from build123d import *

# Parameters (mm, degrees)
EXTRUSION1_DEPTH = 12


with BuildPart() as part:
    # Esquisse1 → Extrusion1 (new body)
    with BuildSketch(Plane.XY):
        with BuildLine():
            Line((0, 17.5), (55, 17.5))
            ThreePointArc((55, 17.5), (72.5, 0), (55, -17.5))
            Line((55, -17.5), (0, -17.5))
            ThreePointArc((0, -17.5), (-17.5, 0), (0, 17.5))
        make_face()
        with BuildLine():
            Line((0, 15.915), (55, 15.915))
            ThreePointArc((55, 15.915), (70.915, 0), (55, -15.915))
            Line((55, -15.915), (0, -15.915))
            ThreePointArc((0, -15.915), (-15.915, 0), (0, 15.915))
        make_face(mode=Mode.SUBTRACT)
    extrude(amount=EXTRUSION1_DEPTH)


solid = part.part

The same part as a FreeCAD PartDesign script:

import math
import FreeCAD as App
import Part
import Sketcher
from FreeCAD import Vector

doc = App.newDocument("Part")
params = doc.addObject("Spreadsheet::Sheet", "Params")
for row, (alias, value) in enumerate([
    ("sketch1_radius", "17.5 mm"),
    ("sketch1_width", "55 mm"),
    ("pad1_length", "12 mm"),
], start=1):
    params.set(f"A{row}", alias)
    params.set(f"B{row}", "=" + value)
    params.setAlias(f"B{row}", alias)

body = doc.addObject("PartDesign::Body", "Body")

# Sketch on XY plane
sketch1 = body.newObject("Sketcher::SketchObject", "Sketch")
sketch1.AttachmentSupport = (doc.getObject("XY_Plane"), [""])
sketch1.MapMode = "FlatFace"
sketch1.addGeometry(Part.LineSegment(Vector(55, 18, 0), Vector(0, 18, 0)), False)
sketch1.addGeometry(Part.ArcOfCircle(Part.Circle(Vector(0, 0, 0), Vector(0, 0, 1), 18), math.radians(90), math.radians(270)), False)
sketch1.addGeometry(Part.LineSegment(Vector(0, -18, 0), Vector(55, -18, 0)), False)
sketch1.addGeometry(Part.ArcOfCircle(Part.Circle(Vector(55, 0, 0), Vector(0, 0, 1), 18), math.radians(-90), math.radians(90)), False)
sketch1.addGeometry(Part.LineSegment(Vector(0, 16, 0), Vector(55, 16, 0)), False)
sketch1.addGeometry(Part.ArcOfCircle(Part.Circle(Vector(55, 0, 0), Vector(0, 0, 1), 16), math.radians(-90), math.radians(90)), False)
sketch1.addGeometry(Part.LineSegment(Vector(55, -16, 0), Vector(0, -16, 0)), False)
sketch1.addGeometry(Part.ArcOfCircle(Part.Circle(Vector(0, 0, 0), Vector(0, 0, 1), 16), math.radians(90), math.radians(270)), False)
sketch1.addConstraint(Sketcher.Constraint("Tangent", 0, 2, 1, 1))
sketch1.addConstraint(Sketcher.Constraint("Tangent", 1, 2, 2, 1))
sketch1.addConstraint(Sketcher.Constraint("Tangent", 2, 2, 3, 1))
sketch1.addConstraint(Sketcher.Constraint("Tangent", 3, 2, 0, 1))
sketch1.addConstraint(Sketcher.Constraint("Tangent", 4, 2, 5, 2))
sketch1.addConstraint(Sketcher.Constraint("Tangent", 5, 1, 6, 1))
sketch1.addConstraint(Sketcher.Constraint("Tangent", 6, 2, 7, 2))
sketch1.addConstraint(Sketcher.Constraint("Tangent", 7, 1, 4, 1))
sketch1.addConstraint(Sketcher.Constraint("Horizontal", 0))
sketch1.addConstraint(Sketcher.Constraint("Horizontal", 2))
sketch1.addConstraint(Sketcher.Constraint("Horizontal", 4))
sketch1.addConstraint(Sketcher.Constraint("Horizontal", 6))
sketch1.addConstraint(Sketcher.Constraint("Coincident", 1, 3, -1, 1))
sketch1.addConstraint(Sketcher.Constraint("Coincident", 7, 3, -1, 1))
sketch1.addConstraint(Sketcher.Constraint("Vertical", 5, 3, 2, 2))
sketch1.addConstraint(Sketcher.Constraint("Radius", 1, 17.5))
sketch1.addConstraint(Sketcher.Constraint("DistanceX", 0, 2, 0, 1, 55.0))
sketch1.addConstraint(Sketcher.Constraint("Radius", 5, 15.915))
sketch1.setExpression("Constraints[15]", "Params.sketch1_radius")
sketch1.setExpression("Constraints[16]", "Params.sketch1_width")
pad1 = body.newObject("PartDesign::Pad", "Pad")
pad1.Profile = sketch1
pad1.setExpression("Length", "Params.pad1_length")

doc.recompute()
